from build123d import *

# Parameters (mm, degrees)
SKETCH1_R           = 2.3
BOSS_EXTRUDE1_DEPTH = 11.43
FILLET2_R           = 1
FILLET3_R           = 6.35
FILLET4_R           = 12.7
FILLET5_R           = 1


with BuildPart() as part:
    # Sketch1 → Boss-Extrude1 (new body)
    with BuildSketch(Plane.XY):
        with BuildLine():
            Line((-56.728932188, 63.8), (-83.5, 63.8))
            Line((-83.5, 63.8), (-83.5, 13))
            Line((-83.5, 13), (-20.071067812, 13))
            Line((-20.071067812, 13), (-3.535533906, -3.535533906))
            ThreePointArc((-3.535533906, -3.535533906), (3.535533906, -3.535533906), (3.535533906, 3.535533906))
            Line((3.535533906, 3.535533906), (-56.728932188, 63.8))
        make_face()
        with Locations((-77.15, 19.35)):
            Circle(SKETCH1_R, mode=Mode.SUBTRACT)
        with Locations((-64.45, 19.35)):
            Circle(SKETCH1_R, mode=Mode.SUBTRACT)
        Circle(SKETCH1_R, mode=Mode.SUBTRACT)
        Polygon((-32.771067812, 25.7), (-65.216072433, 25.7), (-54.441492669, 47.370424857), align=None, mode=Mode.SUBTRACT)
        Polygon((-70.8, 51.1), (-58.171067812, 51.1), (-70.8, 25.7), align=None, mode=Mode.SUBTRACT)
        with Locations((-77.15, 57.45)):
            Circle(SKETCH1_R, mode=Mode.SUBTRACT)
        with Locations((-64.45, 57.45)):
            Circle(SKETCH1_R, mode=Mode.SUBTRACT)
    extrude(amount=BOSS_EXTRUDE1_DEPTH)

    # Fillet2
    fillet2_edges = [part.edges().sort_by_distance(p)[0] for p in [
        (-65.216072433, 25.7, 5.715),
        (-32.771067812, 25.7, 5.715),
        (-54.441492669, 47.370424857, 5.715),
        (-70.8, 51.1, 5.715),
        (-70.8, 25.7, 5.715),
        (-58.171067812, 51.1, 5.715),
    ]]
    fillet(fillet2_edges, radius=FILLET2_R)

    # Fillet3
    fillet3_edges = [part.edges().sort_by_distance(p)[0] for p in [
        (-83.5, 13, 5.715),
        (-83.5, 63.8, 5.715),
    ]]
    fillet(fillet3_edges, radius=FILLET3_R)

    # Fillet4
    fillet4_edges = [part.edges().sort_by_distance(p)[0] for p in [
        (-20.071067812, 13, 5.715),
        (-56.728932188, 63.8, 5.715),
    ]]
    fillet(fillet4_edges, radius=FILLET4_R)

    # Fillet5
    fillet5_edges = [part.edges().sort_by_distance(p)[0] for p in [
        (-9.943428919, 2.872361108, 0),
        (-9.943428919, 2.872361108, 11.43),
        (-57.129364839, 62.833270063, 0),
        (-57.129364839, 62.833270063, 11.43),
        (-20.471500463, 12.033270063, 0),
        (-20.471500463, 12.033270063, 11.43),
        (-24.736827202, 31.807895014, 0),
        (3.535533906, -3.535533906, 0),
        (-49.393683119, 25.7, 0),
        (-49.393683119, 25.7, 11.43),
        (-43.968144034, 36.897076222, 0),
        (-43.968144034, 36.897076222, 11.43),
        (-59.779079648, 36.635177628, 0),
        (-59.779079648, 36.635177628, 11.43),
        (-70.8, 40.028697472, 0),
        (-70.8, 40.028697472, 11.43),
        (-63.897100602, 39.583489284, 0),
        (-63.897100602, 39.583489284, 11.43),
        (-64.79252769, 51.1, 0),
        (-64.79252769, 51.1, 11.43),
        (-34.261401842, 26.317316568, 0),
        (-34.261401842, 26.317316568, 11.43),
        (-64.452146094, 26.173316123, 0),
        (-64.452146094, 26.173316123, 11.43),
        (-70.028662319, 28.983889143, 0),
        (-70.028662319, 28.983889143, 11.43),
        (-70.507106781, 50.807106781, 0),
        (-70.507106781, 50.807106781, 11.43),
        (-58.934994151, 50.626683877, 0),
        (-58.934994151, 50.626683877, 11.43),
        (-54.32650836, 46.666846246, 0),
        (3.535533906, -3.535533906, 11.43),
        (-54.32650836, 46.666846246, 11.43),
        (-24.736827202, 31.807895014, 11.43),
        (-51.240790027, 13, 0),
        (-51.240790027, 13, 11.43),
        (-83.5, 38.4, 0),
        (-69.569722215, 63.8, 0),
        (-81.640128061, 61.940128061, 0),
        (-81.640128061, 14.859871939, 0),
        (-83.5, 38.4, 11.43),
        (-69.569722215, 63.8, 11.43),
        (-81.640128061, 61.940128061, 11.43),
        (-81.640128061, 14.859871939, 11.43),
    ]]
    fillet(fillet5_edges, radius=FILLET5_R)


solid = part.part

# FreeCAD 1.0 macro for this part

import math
import FreeCAD as App
import Part
import Sketcher

V = App.Vector
Q = App.Units.Quantity


def edges_at(feature, points):
    """Names of the edges that pass closest to the given points."""
    edges = feature.Shape.Edges
    near = lambda p: min(range(len(edges)), key=lambda i: edges[i].distToShape(Part.Vertex(*p))[0])
    return sorted({f"Edge{near(p) + 1}" for p in points})


def add_polygon(sketch, points):
    """Adds a closed chain of lines whose ends are joined by coincident constraints."""
    first, n = sketch.GeometryCount, len(points)
    for a, b in zip(points, points[1:] + points[:1]):
        sketch.addGeometry(Part.LineSegment(App.Vector(*a, 0), App.Vector(*b, 0)), False)
    for i in range(n):
        sketch.addConstraint(Sketcher.Constraint("Coincident", first + i, 2, first + (i + 1) % n, 1))

doc = App.newDocument("Part")
body = doc.addObject("PartDesign::Body", "Body")

# Sketch on XY plane
sketch1 = doc.addObject("Sketcher::SketchObject", "Sketch")
body.addObject(sketch1)
sketch1.AttachmentSupport = (doc.XY_Plane, [""])
sketch1.MapMode = "FlatFace"
sketch1.addGeometry(Part.LineSegment(V(-56.7, 63.8, 0), V(-83.5, 63.8, 0)), False)  # 0
sketch1.addGeometry(Part.LineSegment(V(-83.5, 63.8, 0), V(-83.5, 13, 0)), False)  # 1
sketch1.addGeometry(Part.LineSegment(V(-83.5, 13, 0), V(-20.1, 13, 0)), False)  # 2
sketch1.addGeometry(Part.LineSegment(V(-20.1, 13, 0), V(-3.5, -3.5, 0)), False)  # 3
sketch1.addGeometry(Part.ArcOfCircle(Part.Circle(V(0, 0, 0), V(0, 0, 1), 5), math.radians(-135), math.radians(45)), False)  # 4
sketch1.addGeometry(Part.LineSegment(V(3.5, 3.5, 0), V(-56.7, 63.8, 0)), False)  # 5
sketch1.addGeometry(Part.Circle(V(-77.2, 19.4, 0), V(0, 0, 1), 2.3), False)  # 6
sketch1.addGeometry(Part.Circle(V(-64.5, 19.4, 0), V(0, 0, 1), 2.3), False)  # 7
sketch1.addGeometry(Part.Circle(V(0, 0, 0), V(0, 0, 1), 2.3), False)  # 8
add_polygon(sketch1, [(-70.8, 25.7), (-70.8, 51.1), (-58.2, 51.1)])  # lines 9-11
add_polygon(sketch1, [(-54.4, 47.4), (-32.8, 25.7), (-65.2, 25.7)])  # lines 12-14
sketch1.addGeometry(Part.Circle(V(-77.2, 57.5, 0), V(0, 0, 1), 2.3), False)  # 15
sketch1.addGeometry(Part.Circle(V(-64.5, 57.5, 0), V(0, 0, 1), 2.3), False)  # 16
sketch1.addConstraint(Sketcher.Constraint("Coincident", 0, 2, 1, 1))
sketch1.addConstraint(Sketcher.Constraint("Coincident", 1, 2, 2, 1))
sketch1.addConstraint(Sketcher.Constraint("Coincident", 2, 2, 3, 1))
sketch1.addConstraint(Sketcher.Constraint("Tangent", 3, 2, 4, 1))
sketch1.addConstraint(Sketcher.Constraint("Tangent", 4, 2, 5, 1))
sketch1.addConstraint(Sketcher.Constraint("Coincident", 5, 2, 0, 1))
sketch1.addConstraint(Sketcher.Constraint("Horizontal", 0))
sketch1.addConstraint(Sketcher.Constraint("Vertical", 1))
sketch1.addConstraint(Sketcher.Constraint("Horizontal", 2))
sketch1.addConstraint(Sketcher.Constraint("Vertical", 9))
sketch1.addConstraint(Sketcher.Constraint("Horizontal", 10))
sketch1.addConstraint(Sketcher.Constraint("Horizontal", 13))
sketch1.addConstraint(Sketcher.Constraint("Coincident", 4, 3, -1, 1))
sketch1.addConstraint(Sketcher.Constraint("Coincident", 8, 3, -1, 1))
sketch1.addConstraint(Sketcher.Constraint("Equal", 6, 7))
sketch1.addConstraint(Sketcher.Constraint("Equal", 7, 8))
sketch1.addConstraint(Sketcher.Constraint("Equal", 8, 15))
sketch1.addConstraint(Sketcher.Constraint("Equal", 15, 16))
sketch1.addConstraint(Sketcher.Constraint("Parallel", 3, 5))
sketch1.addConstraint(Sketcher.Constraint("Parallel", 5, 12))
sketch1.addConstraint(Sketcher.Constraint("Parallel", 11, 14))
sketch1.addConstraint(Sketcher.Constraint("Horizontal", 6, 3, 7, 3))
sketch1.addConstraint(Sketcher.Constraint("Horizontal", 15, 3, 16, 3))
sketch1.addConstraint(Sketcher.Constraint("Horizontal", 11, 2, 12, 2))
sketch1.addConstraint(Sketcher.Constraint("Vertical", 6, 3, 15, 3))
sketch1.addConstraint(Sketcher.Constraint("Vertical", 7, 3, 16, 3))
sketch1.addConstraint(Sketcher.Constraint("DistanceY", 1, 2, 1, 1, Q("2 in")))
sketch1.addConstraint(Sketcher.Constraint("DistanceY", 9, 1, 9, 2, Q("1 in")))
sketch1.addConstraint(Sketcher.Constraint("Angle", 3, Q("-45 deg")))
sketch1.addConstraint(Sketcher.Constraint("DistanceX", 10, 2, 12, 2, Q("1 in")))
sketch1.addConstraint(Sketcher.Constraint("DistanceX", 6, 3, 7, 3, Q("0.5 in")))
sketch1.addConstraint(Sketcher.Constraint("DistanceY", 6, 3, 15, 3, Q("1.5 in")))
sketch1.addConstraint(Sketcher.Constraint("DistanceX", 0, 2, 9, 2, Q("0.5 in")))
sketch1.addConstraint(Sketcher.Constraint("DistanceY", 9, 2, 0, 2, Q("0.5 in")))
sketch1.addConstraint(Sketcher.Constraint("DistanceX", 12, 2, 2, 2, Q("0.5 in")))
sketch1.addConstraint(Sketcher.Constraint("Diameter", 6, Q("4.6 mm")))
sketch1.addConstraint(Sketcher.Constraint("Radius", 4, Q("5 mm")))
sketch1.addConstraint(Sketcher.Constraint("DistanceX", 0, 2, 15, 3, Q("0.25 in")))
sketch1.addConstraint(Sketcher.Constraint("DistanceY", 15, 3, 0, 2, Q("0.25 in")))
sketch1.addConstraint(Sketcher.Constraint("DistanceX", 6, 3, -1, 1, Q("77.15 mm")))
sketch1.addConstraint(Sketcher.Constraint("DistanceY", -1, 1, 6, 3, Q("19.35 mm")))
sketch1.addConstraint(Sketcher.Constraint("Distance", 12, Q("30.646609 mm")))
pad1 = doc.addObject("PartDesign::Pad", "Pad")
body.addObject(pad1)
pad1.Profile = sketch1
pad1.Length = Q("0.45 in")
doc.recompute()

fillet = doc.addObject("PartDesign::Fillet", "Fillet")
body.addObject(fillet)
fillet.Base = (pad1, edges_at(pad1, [
    (-65.216, 25.7, 5.715),
    (-32.771, 25.7, 5.715),
    (-54.441, 47.37, 5.715),
    (-70.8, 51.1, 5.715),
    (-70.8, 25.7, 5.715),
    (-58.171, 51.1, 5.715),
]))
fillet.Radius = 1
doc.recompute()

fillet2 = doc.addObject("PartDesign::Fillet", "Fillet001")
body.addObject(fillet2)
fillet2.Base = (fillet, edges_at(fillet, [(-83.5, 13, 5.715), (-83.5, 63.8, 5.715)]))
fillet2.Radius = Q("0.25 in")
doc.recompute()

fillet3 = doc.addObject("PartDesign::Fillet", "Fillet002")
body.addObject(fillet3)
fillet3.Base = (fillet2, edges_at(fillet2, [(-20.071, 13, 5.715), (-56.729, 63.8, 5.715)]))
fillet3.Radius = Q("0.5 in")
doc.recompute()

fillet4 = doc.addObject("PartDesign::Fillet", "Fillet003")
body.addObject(fillet4)
fillet4.Base = (fillet3, edges_at(fillet3, [
    (-9.943, 2.872, 0),
    (-9.943, 2.872, 11.43),
    (-57.129, 62.833, 0),
    (-57.129, 62.833, 11.43),
    (-20.472, 12.033, 0),
    (-20.472, 12.033, 11.43),
    (-24.737, 31.808, 0),
    (3.536, -3.536, 0),
    (-49.394, 25.7, 0),
    (-49.394, 25.7, 11.43),
    (-43.968, 36.897, 0),
    (-43.968, 36.897, 11.43),
    (-59.779, 36.635, 0),
    (-59.779, 36.635, 11.43),
    (-70.8, 40.029, 0),
    (-70.8, 40.029, 11.43),
    (-63.897, 39.583, 0),
    (-63.897, 39.583, 11.43),
    (-64.793, 51.1, 0),
    (-64.793, 51.1, 11.43),
    (-34.261, 26.317, 0),
    (-34.261, 26.317, 11.43),
    (-64.452, 26.173, 0),
    (-64.452, 26.173, 11.43),
    (-70.029, 28.984, 0),
    (-70.029, 28.984, 11.43),
    (-70.507, 50.807, 0),
    (-70.507, 50.807, 11.43),
    (-58.935, 50.627, 0),
    (-58.935, 50.627, 11.43),
    (-54.327, 46.667, 0),
    (3.536, -3.536, 11.43),
    (-54.327, 46.667, 11.43),
    (-24.737, 31.808, 11.43),
    (-51.241, 13, 0),
    (-51.241, 13, 11.43),
    (-83.5, 38.4, 0),
    (-69.57, 63.8, 0),
    (-81.64, 61.94, 0),
    (-81.64, 14.86, 0),
    (-83.5, 38.4, 11.43),
    (-69.57, 63.8, 11.43),
    (-81.64, 61.94, 11.43),
    (-81.64, 14.86, 11.43),
]))
fillet4.Radius = 1

doc.recompute()
